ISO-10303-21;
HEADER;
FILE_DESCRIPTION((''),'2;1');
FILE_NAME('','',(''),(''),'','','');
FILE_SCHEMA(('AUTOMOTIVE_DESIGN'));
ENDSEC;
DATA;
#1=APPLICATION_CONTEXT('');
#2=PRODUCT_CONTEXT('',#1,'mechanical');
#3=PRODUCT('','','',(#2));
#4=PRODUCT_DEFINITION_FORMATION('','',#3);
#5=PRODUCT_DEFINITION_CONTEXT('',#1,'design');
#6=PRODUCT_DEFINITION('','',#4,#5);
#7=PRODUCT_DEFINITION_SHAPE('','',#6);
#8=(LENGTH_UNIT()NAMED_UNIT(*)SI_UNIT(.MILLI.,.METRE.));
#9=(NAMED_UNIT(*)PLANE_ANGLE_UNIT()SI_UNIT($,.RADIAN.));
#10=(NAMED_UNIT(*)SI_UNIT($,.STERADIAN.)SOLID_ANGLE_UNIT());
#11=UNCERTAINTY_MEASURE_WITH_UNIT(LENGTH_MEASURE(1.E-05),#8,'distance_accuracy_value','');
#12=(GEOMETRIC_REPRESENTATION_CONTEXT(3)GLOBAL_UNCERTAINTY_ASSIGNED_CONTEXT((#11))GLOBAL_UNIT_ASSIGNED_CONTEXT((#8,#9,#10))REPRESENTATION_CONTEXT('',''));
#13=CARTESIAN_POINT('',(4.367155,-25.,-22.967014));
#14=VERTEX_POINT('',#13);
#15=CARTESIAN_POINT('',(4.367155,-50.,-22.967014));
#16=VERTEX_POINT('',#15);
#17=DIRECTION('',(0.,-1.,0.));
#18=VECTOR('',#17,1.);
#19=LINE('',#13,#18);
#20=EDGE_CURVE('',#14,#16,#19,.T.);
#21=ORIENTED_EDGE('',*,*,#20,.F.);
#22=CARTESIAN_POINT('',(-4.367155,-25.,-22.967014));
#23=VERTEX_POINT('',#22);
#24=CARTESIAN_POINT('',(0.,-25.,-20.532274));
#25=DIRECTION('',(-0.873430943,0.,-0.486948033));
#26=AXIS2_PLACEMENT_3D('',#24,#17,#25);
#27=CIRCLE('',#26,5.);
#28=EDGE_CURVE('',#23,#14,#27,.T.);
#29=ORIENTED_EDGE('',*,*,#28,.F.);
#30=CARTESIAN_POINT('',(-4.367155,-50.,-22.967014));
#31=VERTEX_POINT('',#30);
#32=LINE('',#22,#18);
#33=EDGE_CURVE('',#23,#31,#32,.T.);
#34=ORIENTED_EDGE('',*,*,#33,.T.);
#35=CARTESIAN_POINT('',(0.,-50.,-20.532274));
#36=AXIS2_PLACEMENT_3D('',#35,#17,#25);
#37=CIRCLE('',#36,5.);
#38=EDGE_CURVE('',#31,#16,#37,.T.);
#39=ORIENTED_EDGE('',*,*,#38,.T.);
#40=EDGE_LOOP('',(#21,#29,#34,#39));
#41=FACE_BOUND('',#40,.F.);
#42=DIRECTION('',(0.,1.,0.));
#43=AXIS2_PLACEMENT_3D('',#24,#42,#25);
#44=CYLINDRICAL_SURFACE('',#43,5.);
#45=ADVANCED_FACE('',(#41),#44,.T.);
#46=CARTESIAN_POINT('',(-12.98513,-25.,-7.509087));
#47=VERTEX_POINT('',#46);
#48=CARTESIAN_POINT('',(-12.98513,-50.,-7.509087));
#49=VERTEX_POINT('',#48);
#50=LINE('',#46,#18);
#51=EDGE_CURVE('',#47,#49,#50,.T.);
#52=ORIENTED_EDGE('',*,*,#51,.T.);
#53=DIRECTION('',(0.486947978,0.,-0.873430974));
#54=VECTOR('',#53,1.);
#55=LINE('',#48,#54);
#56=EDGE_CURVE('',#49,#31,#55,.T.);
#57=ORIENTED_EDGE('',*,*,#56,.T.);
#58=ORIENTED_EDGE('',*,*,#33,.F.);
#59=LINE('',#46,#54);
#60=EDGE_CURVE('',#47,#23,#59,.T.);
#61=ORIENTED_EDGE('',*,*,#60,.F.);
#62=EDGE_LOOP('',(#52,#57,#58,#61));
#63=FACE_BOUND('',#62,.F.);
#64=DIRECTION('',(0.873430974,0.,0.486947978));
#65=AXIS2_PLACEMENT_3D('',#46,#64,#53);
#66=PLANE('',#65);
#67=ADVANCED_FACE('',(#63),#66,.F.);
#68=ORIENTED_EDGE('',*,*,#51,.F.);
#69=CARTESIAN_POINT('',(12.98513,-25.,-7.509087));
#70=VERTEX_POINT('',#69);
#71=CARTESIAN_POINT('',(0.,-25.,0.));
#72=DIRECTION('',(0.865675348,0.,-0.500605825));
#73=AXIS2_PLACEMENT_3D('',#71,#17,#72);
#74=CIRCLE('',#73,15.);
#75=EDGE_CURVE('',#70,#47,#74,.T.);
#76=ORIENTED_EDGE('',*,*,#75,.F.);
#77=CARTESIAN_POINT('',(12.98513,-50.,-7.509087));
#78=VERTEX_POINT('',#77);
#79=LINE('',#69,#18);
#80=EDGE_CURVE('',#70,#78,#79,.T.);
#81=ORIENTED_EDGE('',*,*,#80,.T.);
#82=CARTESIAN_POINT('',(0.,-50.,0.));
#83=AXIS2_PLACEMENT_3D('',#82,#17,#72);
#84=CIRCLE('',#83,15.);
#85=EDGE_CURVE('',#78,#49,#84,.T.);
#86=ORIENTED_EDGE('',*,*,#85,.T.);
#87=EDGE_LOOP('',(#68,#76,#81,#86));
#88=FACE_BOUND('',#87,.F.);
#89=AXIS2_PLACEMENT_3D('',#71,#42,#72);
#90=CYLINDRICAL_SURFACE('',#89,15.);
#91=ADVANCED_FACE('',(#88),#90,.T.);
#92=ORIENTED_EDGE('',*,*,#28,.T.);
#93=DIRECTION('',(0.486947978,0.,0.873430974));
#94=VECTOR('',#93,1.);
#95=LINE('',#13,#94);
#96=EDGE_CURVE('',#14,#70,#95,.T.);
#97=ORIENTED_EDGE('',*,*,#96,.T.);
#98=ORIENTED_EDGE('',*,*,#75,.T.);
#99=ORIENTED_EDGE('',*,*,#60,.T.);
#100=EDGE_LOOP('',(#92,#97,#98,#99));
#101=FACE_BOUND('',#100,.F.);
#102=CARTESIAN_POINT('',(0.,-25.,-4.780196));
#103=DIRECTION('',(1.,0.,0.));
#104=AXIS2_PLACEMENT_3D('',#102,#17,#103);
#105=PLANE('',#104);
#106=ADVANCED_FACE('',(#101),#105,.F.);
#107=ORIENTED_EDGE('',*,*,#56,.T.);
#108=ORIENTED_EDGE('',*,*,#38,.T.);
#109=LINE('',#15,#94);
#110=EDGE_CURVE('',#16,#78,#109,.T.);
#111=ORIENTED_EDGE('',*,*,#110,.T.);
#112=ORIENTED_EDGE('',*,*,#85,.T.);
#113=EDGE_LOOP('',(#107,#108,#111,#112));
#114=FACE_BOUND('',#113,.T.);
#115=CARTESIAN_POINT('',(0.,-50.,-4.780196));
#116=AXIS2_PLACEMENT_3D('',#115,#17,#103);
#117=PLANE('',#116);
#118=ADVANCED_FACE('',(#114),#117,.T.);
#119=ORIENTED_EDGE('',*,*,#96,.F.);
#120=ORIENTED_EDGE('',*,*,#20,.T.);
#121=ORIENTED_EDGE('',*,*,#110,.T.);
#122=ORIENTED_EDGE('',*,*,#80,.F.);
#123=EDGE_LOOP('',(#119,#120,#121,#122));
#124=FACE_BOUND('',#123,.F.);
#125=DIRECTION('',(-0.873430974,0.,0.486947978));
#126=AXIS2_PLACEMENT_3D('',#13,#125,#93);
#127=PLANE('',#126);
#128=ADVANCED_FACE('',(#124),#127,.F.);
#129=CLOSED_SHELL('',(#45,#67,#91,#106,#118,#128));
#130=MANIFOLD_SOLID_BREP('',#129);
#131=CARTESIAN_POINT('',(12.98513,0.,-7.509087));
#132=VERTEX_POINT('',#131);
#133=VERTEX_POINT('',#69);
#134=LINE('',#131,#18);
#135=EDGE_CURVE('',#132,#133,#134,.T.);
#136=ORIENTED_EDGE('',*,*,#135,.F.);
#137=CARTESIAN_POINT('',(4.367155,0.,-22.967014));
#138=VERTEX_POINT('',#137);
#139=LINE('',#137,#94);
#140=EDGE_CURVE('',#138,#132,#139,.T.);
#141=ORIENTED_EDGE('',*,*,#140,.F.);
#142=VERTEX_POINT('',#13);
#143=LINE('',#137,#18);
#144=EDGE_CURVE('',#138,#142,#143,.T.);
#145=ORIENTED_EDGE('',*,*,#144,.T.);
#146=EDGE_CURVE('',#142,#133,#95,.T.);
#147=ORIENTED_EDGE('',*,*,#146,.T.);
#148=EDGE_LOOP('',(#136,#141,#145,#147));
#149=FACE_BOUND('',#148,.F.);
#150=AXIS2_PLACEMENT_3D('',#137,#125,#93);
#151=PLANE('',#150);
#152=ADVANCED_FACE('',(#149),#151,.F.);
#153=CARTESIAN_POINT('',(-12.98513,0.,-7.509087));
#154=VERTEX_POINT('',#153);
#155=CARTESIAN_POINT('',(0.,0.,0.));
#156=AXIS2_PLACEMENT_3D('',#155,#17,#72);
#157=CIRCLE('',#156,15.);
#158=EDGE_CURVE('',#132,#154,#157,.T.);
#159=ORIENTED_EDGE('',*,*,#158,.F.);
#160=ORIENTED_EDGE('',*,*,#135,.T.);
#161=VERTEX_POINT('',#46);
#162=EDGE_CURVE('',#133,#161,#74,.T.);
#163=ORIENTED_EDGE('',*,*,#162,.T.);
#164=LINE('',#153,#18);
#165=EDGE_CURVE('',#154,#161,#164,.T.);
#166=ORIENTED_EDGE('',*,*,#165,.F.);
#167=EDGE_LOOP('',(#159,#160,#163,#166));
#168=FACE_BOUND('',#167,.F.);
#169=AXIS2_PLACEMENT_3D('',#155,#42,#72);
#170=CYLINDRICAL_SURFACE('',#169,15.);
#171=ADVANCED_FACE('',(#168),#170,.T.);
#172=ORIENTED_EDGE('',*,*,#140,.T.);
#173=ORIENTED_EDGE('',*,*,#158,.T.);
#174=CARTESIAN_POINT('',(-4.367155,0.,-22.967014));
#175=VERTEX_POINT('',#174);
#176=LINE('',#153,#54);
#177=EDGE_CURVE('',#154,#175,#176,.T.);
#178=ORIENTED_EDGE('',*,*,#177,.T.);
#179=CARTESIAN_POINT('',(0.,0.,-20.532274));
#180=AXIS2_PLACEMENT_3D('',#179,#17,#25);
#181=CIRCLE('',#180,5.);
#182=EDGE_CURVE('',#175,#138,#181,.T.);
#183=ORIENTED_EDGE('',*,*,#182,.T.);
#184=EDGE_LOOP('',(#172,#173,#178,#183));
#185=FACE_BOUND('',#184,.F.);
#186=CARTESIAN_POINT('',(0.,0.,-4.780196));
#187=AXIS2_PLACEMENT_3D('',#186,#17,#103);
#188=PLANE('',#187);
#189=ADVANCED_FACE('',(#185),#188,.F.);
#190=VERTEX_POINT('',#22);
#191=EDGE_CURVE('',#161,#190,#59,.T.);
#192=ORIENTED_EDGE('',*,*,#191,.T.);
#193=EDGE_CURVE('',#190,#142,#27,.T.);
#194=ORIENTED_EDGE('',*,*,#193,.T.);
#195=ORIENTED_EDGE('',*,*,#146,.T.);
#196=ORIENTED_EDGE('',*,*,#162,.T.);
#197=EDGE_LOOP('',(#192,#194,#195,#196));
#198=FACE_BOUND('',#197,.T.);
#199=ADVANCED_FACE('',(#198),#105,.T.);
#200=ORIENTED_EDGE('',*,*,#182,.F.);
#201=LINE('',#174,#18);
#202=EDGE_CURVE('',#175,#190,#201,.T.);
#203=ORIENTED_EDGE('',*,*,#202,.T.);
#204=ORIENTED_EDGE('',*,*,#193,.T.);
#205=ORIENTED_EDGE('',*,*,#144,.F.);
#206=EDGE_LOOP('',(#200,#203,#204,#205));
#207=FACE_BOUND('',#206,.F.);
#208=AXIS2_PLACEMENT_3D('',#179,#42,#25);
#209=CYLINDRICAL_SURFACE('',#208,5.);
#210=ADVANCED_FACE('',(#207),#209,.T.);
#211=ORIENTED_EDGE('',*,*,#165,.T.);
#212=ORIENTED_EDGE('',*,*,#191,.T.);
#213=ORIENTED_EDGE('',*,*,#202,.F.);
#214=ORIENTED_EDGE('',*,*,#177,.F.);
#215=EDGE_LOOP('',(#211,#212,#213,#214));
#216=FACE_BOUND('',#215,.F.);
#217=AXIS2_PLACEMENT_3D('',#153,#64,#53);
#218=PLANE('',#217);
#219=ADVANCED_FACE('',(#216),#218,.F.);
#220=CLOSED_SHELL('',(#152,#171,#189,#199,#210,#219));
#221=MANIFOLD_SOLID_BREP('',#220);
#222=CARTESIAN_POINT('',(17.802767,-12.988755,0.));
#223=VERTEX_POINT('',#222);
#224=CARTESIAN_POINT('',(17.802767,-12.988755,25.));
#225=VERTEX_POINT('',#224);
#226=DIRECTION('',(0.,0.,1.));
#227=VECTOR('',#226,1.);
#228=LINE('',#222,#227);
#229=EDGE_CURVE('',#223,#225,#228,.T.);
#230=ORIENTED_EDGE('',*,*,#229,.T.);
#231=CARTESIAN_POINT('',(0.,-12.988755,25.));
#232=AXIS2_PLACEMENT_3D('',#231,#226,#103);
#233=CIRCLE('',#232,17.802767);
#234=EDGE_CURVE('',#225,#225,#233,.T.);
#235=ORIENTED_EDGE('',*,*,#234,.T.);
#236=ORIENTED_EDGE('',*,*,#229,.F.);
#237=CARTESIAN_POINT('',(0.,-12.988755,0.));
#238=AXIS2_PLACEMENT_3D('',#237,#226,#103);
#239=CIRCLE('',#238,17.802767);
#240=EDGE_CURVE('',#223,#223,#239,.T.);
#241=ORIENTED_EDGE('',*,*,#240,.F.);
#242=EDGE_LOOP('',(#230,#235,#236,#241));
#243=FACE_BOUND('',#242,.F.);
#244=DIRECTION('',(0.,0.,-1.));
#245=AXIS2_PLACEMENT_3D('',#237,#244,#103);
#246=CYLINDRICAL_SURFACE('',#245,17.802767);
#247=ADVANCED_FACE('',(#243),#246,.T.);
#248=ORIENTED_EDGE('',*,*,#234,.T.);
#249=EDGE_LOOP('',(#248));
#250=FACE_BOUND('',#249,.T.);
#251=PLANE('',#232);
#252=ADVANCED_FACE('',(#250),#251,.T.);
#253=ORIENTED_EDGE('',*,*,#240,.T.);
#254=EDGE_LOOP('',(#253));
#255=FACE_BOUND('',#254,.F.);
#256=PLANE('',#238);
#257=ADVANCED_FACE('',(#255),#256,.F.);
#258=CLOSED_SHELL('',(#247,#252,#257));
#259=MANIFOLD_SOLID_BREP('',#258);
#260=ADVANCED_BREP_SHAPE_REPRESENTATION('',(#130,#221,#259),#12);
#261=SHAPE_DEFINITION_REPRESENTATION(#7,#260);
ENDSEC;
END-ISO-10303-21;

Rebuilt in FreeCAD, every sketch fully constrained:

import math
import FreeCAD as App
import Part
import Sketcher
from FreeCAD import Vector
Q = App.Units.Quantity

doc = App.newDocument("Part")
body = doc.addObject("PartDesign::Body", "Body")

# Sketch on XZ plane
sketch1 = body.newObject("Sketcher::SketchObject", "Sketch")
sketch1.AttachmentSupport = (doc.getObject("XZ_Plane"), [""])
sketch1.MapMode = "FlatFace"
sketch1.addGeometry(Part.LineSegment(Vector(4, -23, 0), Vector(13, -8, 0)), False)
sketch1.addGeometry(Part.ArcOfCircle(Part.Circle(Vector(0, 0, 0), Vector(0, 0, 1), 15), math.radians(-30), math.radians(210)), False)
sketch1.addGeometry(Part.LineSegment(Vector(-13, -8, 0), Vector(-4, -23, 0)), False)
sketch1.addGeometry(Part.ArcOfCircle(Part.Circle(Vector(0, -21, 0), Vector(0, 0, 1), 5), math.radians(-151), math.radians(-29)), False)
sketch1.addConstraint(Sketcher.Constraint("Coincident", 0, 2, 1, 1))
sketch1.addConstraint(Sketcher.Constraint("Coincident", 1, 2, 2, 1))
sketch1.addConstraint(Sketcher.Constraint("Tangent", 2, 2, 3, 1))
sketch1.addConstraint(Sketcher.Constraint("Tangent", 3, 2, 0, 1))
sketch1.addConstraint(Sketcher.Constraint("Coincident", 1, 3, -1, 1))
sketch1.addConstraint(Sketcher.Constraint("PointOnObject", 3, 3, -2))
sketch1.addConstraint(Sketcher.Constraint("Horizontal", 0, 2, 1, 2))
sketch1.addConstraint(Sketcher.Constraint("Radius", 1, Q("15 mm")))
sketch1.addConstraint(Sketcher.Constraint("Radius", 3, Q("5 mm")))
sketch1.addConstraint(Sketcher.Constraint("DistanceX", -1, 1, 0, 2, Q("12.98513 mm")))
sketch1.addConstraint(Sketcher.Constraint("DistanceY", 2, 2, 3, 3, Q("2.43474 mm")))
pad1 = body.newObject("PartDesign::Pad", "Pad")
pad1.Profile = sketch1
pad1.Length = 25
body2 = doc.addObject("PartDesign::Body", "Body001")

# Sketch on XY plane
sketch2 = body2.newObject("Sketcher::SketchObject", "Sketch001")
sketch2.AttachmentSupport = (doc.getObject("XY_Plane001"), [""])
sketch2.MapMode = "FlatFace"
sketch2.addGeometry(Part.Circle(Vector(0, -13, 0), Vector(0, 0, 1), 18), False)
sketch2.addConstraint(Sketcher.Constraint("PointOnObject", 0, 3, -2))
sketch2.addConstraint(Sketcher.Constraint("Diameter", 0, Q("35.605534 mm")))
sketch2.addConstraint(Sketcher.Constraint("DistanceY", 0, 3, -1, 1, Q("12.988755 mm")))
pad2 = body2.newObject("PartDesign::Pad", "Pad001")
pad2.Profile = sketch2
pad2.Length = 25
body3 = doc.addObject("PartDesign::Body", "Body002")

# Sketch on XZ plane
sketch3 = body3.newObject("Sketcher::SketchObject", "Sketch002")
sketch3.AttachmentSupport = (doc.getObject("XZ_Plane002"), [""])
sketch3.MapMode = "FlatFace"
sketch3.AttachmentOffset = App.Placement(Vector(0, 0, 25), App.Rotation())
sketch3.addGeometry(Part.LineSegment(Vector(4, -23, 0), Vector(13, -8, 0)), False)
sketch3.addGeometry(Part.ArcOfCircle(Part.Circle(Vector(0, 0, 0), Vector(0, 0, 1), 15), math.radians(-30), math.radians(210)), False)
sketch3.addGeometry(Part.LineSegment(Vector(-13, -8, 0), Vector(-4, -23, 0)), False)
sketch3.addGeometry(Part.ArcOfCircle(Part.Circle(Vector(0, -21, 0), Vector(0, 0, 1), 5), math.radians(-151), math.radians(-29)), False)
sketch3.addConstraint(Sketcher.Constraint("Coincident", 0, 2, 1, 1))
sketch3.addConstraint(Sketcher.Constraint("Coincident", 1, 2, 2, 1))
sketch3.addConstraint(Sketcher.Constraint("Tangent", 2, 2, 3, 1))
sketch3.addConstraint(Sketcher.Constraint("Tangent", 3, 2, 0, 1))
sketch3.addConstraint(Sketcher.Constraint("Coincident", 1, 3, -1, 1))
sketch3.addConstraint(Sketcher.Constraint("PointOnObject", 3, 3, -2))
sketch3.addConstraint(Sketcher.Constraint("Horizontal", 0, 2, 1, 2))
sketch3.addConstraint(Sketcher.Constraint("Radius", 1, Q("15 mm")))
sketch3.addConstraint(Sketcher.Constraint("Radius", 3, Q("5 mm")))
sketch3.addConstraint(Sketcher.Constraint("DistanceX", -1, 1, 0, 2, Q("12.98513 mm")))
sketch3.addConstraint(Sketcher.Constraint("DistanceY", 2, 2, 3, 3, Q("2.43474 mm")))
pad3 = body3.newObject("PartDesign::Pad", "Pad002")
pad3.Profile = sketch3
pad3.Length = 25

doc.recompute()
